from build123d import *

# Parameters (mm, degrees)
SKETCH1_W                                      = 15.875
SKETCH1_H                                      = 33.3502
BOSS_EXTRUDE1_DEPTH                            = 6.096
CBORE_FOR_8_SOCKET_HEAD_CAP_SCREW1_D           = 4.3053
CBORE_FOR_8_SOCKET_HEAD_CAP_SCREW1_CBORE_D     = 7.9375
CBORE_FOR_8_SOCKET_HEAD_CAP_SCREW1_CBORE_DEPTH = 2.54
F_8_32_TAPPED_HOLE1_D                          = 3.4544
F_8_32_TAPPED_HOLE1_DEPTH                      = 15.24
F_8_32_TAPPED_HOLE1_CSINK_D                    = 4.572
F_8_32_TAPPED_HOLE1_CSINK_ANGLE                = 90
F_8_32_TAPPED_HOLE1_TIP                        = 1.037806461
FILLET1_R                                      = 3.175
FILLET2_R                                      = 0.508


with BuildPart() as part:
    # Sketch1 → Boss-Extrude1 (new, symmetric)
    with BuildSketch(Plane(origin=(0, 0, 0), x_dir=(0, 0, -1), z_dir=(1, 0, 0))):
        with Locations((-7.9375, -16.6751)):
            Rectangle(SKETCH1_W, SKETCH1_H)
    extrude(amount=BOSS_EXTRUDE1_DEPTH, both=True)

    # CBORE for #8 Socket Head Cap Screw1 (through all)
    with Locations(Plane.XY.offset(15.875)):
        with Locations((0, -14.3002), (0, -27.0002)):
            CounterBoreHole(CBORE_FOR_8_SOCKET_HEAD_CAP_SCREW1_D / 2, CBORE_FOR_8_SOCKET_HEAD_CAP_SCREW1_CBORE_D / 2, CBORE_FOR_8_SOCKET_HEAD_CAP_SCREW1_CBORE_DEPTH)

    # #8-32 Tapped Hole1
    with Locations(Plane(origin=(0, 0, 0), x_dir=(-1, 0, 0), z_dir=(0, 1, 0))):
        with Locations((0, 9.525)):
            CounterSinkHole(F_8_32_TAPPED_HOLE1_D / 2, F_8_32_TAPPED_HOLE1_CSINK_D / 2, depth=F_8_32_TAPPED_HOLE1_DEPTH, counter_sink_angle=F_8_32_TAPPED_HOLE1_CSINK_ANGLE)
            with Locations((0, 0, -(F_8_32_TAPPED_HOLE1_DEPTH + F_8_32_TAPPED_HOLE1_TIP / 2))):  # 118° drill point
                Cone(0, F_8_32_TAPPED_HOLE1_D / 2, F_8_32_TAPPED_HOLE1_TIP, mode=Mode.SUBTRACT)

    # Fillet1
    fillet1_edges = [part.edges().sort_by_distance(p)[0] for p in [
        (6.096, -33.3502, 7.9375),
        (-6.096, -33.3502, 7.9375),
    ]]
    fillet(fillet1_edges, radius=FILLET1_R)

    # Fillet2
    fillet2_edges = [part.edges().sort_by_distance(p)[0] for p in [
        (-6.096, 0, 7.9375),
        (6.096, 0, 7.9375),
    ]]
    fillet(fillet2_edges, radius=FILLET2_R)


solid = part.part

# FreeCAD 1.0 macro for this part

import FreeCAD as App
import Part
import Sketcher
from FreeCAD import Vector
Q = App.Units.Quantity


def edges_at(feature, points):
    """Names of the edges that pass closest to the given points."""
    edges = feature.Shape.Edges
    near = lambda p: min(range(len(edges)), key=lambda i: edges[i].distToShape(Part.Vertex(*p))[0])
    return sorted({f"Edge{near(p) + 1}" for p in points})


def add_polygon(sketch, points):
    """Adds a closed chain of lines whose ends are joined by coincident constraints."""
    first, n = sketch.GeometryCount, len(points)
    for a, b in zip(points, points[1:] + points[:1]):
        sketch.addGeometry(Part.LineSegment(App.Vector(*a, 0), App.Vector(*b, 0)), False)
    for i in range(n):
        sketch.addConstraint(Sketcher.Constraint("Coincident", first + i, 2, first + (i + 1) % n, 1))

doc = App.newDocument("Part")
body = doc.addObject("PartDesign::Body", "Body")

sketch1 = body.newObject("Sketcher::SketchObject", "Sketch")
sketch1.AttachmentSupport = (doc.getObject("YZ_Plane"), [""])
sketch1.MapMode = "FlatFace"
add_polygon(sketch1, [(0, 15.875), (-33.3502, 15.875), (-33.3502, 0), (0, 0)])
sketch1.addConstraint([
    Sketcher.Constraint("Horizontal", 0),
    Sketcher.Constraint("Vertical", 1),
    Sketcher.Constraint("Horizontal", 2),
    Sketcher.Constraint("Vertical", 3),
    Sketcher.Constraint("Coincident", 2, 2, -1, 1),
    Sketcher.Constraint("DistanceX", 0, 2, 0, 1, Q("1.313 in")),
    Sketcher.Constraint("DistanceY", 1, 2, 1, 1, Q("0.625 in")),
])
pad1 = body.newObject("PartDesign::Pad", "Pad")
pad1.Profile = sketch1
pad1.Length = Q("0.48 in")
pad1.Midplane = True

sketch2 = body.newObject("Sketcher::SketchObject", "Sketch001")
sketch2.AttachmentSupport = (doc.getObject("XY_Plane"), [""])
sketch2.MapMode = "FlatFace"
sketch2.AttachmentOffset = App.Placement(Vector(0, 0, 0.625 * 25.4), App.Rotation())
sketch2.addGeometry([
    Part.Circle(Vector(0, -14.3002, 0), Vector(0, 0, 1), 2.15265),
    Part.Circle(Vector(0, -27.0002, 0), Vector(0, 0, 1), 2.15265),
], False)
sketch2.addConstraint([
    Sketcher.Constraint("Equal", 0, 1),
    Sketcher.Constraint("PointOnObject", 0, 3, -2),
    Sketcher.Constraint("PointOnObject", 1, 3, -2),
    Sketcher.Constraint("Diameter", 0, Q("0.1695 in")),
    Sketcher.Constraint("DistanceY", 1, 3, 0, 3, Q("0.5 in")),
    Sketcher.Constraint("DistanceY", 0, 3, -1, 1, Q("0.563 in")),
])
doc.recompute()
hole = body.newObject("PartDesign::Hole", "Hole")
hole.Profile = sketch2
hole.ThreadType = "None"
hole.Diameter = Q("0.1695 in")
hole.DepthType = "ThroughAll"
hole.HoleCutType = "Counterbore"
hole.HoleCutDiameter = Q("0.3125 in")
hole.HoleCutDepth = Q("0.1 in")

sketch3 = body.newObject("Sketcher::SketchObject", "Sketch002")
sketch3.AttachmentSupport = (doc.getObject("XZ_Plane"), [""])
sketch3.MapMode = "FlatFace"
sketch3.addGeometry(Part.Circle(Vector(0, 9.525, 0), Vector(0, 0, 1), 1.7272), False)
sketch3.addConstraint([
    Sketcher.Constraint("PointOnObject", 0, 3, -2),
    Sketcher.Constraint("Diameter", 0, Q("0.136 in")),
    Sketcher.Constraint("DistanceY", -1, 1, 0, 3, Q("0.375 in")),
])
doc.recompute()
hole2 = body.newObject("PartDesign::Hole", "Hole001")
hole2.Profile = sketch3
hole2.ThreadType = "None"
hole2.Diameter = Q("0.136 in")
hole2.DepthType = "Dimension"
hole2.Depth = Q("0.6 in")
hole2.DrillPoint = "Angled"
hole2.DrillPointAngle = 118
hole2.HoleCutType = "Countersink"
hole2.HoleCutDiameter = Q("0.18 in")
hole2.HoleCutCountersinkAngle = 90
hole2.Reversed = True
doc.recompute()

fillet = body.newObject("PartDesign::Fillet", "Fillet")
fillet.Base = (hole2, edges_at(hole2, [(6.096, -33.35, 7.938), (-6.096, -33.35, 7.938)]))
fillet.Radius = Q("0.125 in")
doc.recompute()

fillet2 = body.newObject("PartDesign::Fillet", "Fillet001")
fillet2.Base = (fillet, edges_at(fillet, [(-6.096, 0, 7.938), (6.096, 0, 7.938)]))
fillet2.Radius = Q("0.02 in")

doc.recompute()
